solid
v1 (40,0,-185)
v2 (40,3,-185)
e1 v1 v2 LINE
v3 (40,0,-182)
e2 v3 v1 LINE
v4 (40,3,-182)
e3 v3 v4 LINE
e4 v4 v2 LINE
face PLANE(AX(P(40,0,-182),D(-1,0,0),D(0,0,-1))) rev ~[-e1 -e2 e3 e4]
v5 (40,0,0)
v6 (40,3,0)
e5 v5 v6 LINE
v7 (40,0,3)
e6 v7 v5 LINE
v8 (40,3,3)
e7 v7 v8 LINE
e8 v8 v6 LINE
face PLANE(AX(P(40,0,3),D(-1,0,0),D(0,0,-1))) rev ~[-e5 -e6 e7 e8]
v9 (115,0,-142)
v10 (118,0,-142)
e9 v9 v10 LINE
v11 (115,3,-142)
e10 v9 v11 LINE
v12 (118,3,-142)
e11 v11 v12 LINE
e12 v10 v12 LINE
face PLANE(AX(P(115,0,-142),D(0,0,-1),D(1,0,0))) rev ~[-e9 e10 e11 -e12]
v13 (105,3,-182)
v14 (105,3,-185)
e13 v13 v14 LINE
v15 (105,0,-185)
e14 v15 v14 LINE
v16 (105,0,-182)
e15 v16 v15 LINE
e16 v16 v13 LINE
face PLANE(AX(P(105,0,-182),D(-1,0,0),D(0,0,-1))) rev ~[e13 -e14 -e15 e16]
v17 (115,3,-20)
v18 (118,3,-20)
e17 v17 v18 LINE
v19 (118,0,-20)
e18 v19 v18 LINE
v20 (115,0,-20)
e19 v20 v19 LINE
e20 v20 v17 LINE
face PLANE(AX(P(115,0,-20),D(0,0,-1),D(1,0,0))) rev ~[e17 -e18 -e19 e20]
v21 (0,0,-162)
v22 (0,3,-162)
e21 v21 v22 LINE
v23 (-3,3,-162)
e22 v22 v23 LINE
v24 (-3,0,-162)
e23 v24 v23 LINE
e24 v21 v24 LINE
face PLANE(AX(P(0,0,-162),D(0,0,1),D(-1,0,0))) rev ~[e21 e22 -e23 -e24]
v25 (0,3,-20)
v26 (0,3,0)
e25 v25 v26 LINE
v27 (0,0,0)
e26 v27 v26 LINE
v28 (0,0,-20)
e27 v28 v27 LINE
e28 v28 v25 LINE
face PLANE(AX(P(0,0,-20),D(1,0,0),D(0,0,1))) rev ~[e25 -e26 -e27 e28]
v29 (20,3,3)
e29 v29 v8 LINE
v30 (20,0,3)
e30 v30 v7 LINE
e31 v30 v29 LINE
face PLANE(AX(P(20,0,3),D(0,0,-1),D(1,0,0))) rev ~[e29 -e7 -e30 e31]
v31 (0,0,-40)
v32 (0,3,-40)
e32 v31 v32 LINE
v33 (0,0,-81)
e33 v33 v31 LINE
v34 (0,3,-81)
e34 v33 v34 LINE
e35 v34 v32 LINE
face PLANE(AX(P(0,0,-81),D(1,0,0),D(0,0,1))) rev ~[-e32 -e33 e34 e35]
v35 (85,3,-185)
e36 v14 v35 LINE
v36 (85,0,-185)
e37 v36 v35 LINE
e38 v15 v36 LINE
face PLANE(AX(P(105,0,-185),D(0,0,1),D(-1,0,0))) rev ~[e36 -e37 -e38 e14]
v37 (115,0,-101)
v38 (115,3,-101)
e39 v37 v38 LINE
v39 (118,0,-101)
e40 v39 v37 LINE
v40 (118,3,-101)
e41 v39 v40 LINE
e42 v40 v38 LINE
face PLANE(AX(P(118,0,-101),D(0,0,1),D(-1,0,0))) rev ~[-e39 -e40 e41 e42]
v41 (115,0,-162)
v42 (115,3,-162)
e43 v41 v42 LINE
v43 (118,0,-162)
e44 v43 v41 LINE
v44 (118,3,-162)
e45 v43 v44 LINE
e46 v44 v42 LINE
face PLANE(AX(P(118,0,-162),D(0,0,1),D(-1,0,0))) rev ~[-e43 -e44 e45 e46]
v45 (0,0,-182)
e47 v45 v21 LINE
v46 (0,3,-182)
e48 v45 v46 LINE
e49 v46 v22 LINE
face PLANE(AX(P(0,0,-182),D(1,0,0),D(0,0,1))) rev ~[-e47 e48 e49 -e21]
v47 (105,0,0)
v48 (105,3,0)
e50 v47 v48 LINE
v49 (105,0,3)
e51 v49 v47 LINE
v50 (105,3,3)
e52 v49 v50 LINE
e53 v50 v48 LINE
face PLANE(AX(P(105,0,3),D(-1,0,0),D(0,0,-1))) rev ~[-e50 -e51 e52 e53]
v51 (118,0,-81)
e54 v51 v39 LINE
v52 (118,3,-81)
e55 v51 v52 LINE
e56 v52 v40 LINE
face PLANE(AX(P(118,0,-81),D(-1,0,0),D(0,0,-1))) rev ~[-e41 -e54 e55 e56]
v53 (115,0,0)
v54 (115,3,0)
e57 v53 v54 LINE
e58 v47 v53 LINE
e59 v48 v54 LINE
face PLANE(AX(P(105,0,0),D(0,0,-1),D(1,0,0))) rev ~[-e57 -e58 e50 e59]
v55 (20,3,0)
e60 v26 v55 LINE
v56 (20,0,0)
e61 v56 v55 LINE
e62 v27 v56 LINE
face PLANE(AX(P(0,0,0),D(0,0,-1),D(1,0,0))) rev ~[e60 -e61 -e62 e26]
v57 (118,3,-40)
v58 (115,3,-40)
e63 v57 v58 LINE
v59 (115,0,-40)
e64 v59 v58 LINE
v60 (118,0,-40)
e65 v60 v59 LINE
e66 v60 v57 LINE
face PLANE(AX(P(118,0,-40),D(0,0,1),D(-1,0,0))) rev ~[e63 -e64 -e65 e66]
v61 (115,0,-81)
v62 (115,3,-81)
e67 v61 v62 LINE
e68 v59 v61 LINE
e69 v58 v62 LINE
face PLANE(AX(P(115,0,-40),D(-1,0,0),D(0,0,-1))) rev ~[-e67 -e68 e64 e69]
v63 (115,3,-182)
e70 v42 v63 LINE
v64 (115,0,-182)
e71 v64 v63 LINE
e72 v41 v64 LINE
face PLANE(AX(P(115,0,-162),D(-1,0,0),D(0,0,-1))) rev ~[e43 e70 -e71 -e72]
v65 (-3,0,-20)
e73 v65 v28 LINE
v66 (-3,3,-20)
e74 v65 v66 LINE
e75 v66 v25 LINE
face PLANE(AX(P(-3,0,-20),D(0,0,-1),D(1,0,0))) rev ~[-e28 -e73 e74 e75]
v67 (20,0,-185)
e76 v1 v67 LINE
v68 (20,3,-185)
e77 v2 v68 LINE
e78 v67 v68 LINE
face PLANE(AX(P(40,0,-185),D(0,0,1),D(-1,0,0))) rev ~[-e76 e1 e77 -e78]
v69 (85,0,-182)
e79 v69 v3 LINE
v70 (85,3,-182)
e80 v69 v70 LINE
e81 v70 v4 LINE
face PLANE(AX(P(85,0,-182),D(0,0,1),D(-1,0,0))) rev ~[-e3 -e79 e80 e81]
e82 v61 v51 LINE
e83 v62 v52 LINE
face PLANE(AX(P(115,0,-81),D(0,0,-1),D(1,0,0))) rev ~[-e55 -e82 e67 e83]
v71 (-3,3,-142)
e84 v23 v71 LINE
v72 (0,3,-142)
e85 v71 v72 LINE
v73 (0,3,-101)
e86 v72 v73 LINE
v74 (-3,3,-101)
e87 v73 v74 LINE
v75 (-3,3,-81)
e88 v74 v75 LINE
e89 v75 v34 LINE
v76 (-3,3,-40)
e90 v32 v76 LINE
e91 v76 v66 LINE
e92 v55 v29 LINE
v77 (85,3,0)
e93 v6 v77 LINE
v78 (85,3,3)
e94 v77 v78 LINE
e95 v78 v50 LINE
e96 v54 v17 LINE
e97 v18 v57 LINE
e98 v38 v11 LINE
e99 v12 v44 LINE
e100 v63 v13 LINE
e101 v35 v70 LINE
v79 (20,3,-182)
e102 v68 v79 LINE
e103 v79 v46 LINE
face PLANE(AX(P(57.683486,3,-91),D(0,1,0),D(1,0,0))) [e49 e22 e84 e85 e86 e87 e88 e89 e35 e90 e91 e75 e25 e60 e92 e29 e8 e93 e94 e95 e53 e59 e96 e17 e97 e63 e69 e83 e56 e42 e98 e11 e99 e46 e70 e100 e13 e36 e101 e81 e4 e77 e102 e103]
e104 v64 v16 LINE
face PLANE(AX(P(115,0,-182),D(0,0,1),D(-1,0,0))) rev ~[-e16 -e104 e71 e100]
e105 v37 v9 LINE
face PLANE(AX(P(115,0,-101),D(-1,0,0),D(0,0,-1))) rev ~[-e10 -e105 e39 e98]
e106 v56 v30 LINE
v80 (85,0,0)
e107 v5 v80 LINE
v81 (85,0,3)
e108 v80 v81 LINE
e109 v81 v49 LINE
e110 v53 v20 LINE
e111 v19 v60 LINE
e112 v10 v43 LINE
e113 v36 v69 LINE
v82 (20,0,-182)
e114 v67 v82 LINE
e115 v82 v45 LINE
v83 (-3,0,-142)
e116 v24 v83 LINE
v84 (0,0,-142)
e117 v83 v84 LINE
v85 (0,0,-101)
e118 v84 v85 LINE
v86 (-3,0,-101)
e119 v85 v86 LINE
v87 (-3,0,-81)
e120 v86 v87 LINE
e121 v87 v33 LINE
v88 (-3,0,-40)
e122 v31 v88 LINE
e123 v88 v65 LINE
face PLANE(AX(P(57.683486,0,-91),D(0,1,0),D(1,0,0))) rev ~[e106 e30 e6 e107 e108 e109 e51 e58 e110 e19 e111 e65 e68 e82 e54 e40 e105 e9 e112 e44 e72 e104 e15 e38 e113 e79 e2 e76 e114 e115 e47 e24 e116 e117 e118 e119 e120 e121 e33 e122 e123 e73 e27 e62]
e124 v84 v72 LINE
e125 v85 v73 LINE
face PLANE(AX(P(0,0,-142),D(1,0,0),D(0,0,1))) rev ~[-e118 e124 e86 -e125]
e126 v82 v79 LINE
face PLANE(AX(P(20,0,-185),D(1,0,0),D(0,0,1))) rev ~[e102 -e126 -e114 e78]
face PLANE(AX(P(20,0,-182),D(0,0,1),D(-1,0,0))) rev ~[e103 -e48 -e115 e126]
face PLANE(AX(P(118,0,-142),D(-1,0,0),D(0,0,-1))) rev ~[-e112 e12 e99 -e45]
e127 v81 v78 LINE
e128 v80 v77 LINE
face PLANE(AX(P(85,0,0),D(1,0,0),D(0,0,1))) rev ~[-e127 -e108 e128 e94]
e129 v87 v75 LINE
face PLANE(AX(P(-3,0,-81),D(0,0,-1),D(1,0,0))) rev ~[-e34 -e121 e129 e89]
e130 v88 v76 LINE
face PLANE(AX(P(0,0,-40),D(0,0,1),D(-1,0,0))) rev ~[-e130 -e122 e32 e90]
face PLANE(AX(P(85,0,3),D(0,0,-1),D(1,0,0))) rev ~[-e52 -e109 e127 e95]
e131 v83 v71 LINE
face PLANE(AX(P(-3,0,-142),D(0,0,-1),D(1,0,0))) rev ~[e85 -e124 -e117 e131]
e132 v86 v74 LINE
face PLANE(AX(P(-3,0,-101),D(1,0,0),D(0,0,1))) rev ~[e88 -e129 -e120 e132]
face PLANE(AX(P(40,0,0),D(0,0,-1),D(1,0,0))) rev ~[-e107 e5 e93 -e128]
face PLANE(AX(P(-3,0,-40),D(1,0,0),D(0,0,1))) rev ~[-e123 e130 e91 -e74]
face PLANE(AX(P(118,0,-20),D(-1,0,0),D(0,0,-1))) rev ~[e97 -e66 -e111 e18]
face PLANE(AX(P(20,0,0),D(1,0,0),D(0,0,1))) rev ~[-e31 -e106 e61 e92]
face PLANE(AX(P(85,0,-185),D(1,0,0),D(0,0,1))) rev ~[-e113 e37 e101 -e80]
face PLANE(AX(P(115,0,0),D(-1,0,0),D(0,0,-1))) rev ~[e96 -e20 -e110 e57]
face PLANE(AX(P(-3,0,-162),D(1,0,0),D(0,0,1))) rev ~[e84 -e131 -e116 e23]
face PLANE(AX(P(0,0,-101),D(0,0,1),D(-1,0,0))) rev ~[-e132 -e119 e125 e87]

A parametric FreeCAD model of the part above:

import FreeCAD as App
import Part
import Sketcher
Q = App.Units.Quantity

doc = App.newDocument("Part")
body = doc.addObject("PartDesign::Body", "Body")

# Sketch on XZ plane
sketch1 = doc.addObject("Sketcher::SketchObject", "Sketch")
body.addObject(sketch1)
sketch1.AttachmentSupport = (doc.XZ_Plane, [""])
sketch1.MapMode = "FlatFace"
sketch1.addGeometry([
    Part.LineSegment(App.Vector(40, 0, 0), App.Vector(85, 0, 0)),  # 0
    Part.LineSegment(App.Vector(85, 0, 0), App.Vector(85, 3, 0)),  # 1
    Part.LineSegment(App.Vector(85, 3, 0), App.Vector(105, 3, 0)),  # 2
    Part.LineSegment(App.Vector(105, 3, 0), App.Vector(105, 0, 0)),  # 3
    Part.LineSegment(App.Vector(105, 0, 0), App.Vector(115, 0, 0)),  # 4
    Part.LineSegment(App.Vector(115, 0, 0), App.Vector(115, -20, 0)),  # 5
    Part.LineSegment(App.Vector(115, -20, 0), App.Vector(118, -20, 0)),  # 6
    Part.LineSegment(App.Vector(118, -20, 0), App.Vector(118, -40, 0)),  # 7
    Part.LineSegment(App.Vector(118, -40, 0), App.Vector(115, -40, 0)),  # 8
    Part.LineSegment(App.Vector(115, -40, 0), App.Vector(115, -81, 0)),  # 9
    Part.LineSegment(App.Vector(115, -81, 0), App.Vector(118, -81, 0)),  # 10
    Part.LineSegment(App.Vector(118, -81, 0), App.Vector(118, -101, 0)),  # 11
    Part.LineSegment(App.Vector(118, -101, 0), App.Vector(115, -101, 0)),  # 12
    Part.LineSegment(App.Vector(115, -101, 0), App.Vector(115, -142, 0)),  # 13
    Part.LineSegment(App.Vector(115, -142, 0), App.Vector(118, -142, 0)),  # 14
    Part.LineSegment(App.Vector(118, -142, 0), App.Vector(118, -162, 0)),  # 15
    Part.LineSegment(App.Vector(118, -162, 0), App.Vector(115, -162, 0)),  # 16
    Part.LineSegment(App.Vector(115, -162, 0), App.Vector(115, -182, 0)),  # 17
    Part.LineSegment(App.Vector(115, -182, 0), App.Vector(105, -182, 0)),  # 18
    Part.LineSegment(App.Vector(105, -182, 0), App.Vector(105, -185, 0)),  # 19
    Part.LineSegment(App.Vector(105, -185, 0), App.Vector(85, -185, 0)),  # 20
    Part.LineSegment(App.Vector(85, -185, 0), App.Vector(85, -182, 0)),  # 21
    Part.LineSegment(App.Vector(85, -182, 0), App.Vector(40, -182, 0)),  # 22
    Part.LineSegment(App.Vector(40, -182, 0), App.Vector(40, -185, 0)),  # 23
    Part.LineSegment(App.Vector(40, -185, 0), App.Vector(20, -185, 0)),  # 24
    Part.LineSegment(App.Vector(20, -185, 0), App.Vector(20, -182, 0)),  # 25
    Part.LineSegment(App.Vector(20, -182, 0), App.Vector(0, -182, 0)),  # 26
    Part.LineSegment(App.Vector(0, -182, 0), App.Vector(0, -162, 0)),  # 27
    Part.LineSegment(App.Vector(0, -162, 0), App.Vector(-3, -162, 0)),  # 28
    Part.LineSegment(App.Vector(-3, -162, 0), App.Vector(-3, -142, 0)),  # 29
    Part.LineSegment(App.Vector(-3, -142, 0), App.Vector(0, -142, 0)),  # 30
    Part.LineSegment(App.Vector(0, -142, 0), App.Vector(0, -101, 0)),  # 31
    Part.LineSegment(App.Vector(0, -101, 0), App.Vector(-3, -101, 0)),  # 32
    Part.LineSegment(App.Vector(-3, -101, 0), App.Vector(-3, -81, 0)),  # 33
    Part.LineSegment(App.Vector(-3, -81, 0), App.Vector(0, -81, 0)),  # 34
    Part.LineSegment(App.Vector(0, -81, 0), App.Vector(0, -40, 0)),  # 35
    Part.LineSegment(App.Vector(0, -40, 0), App.Vector(-3, -40, 0)),  # 36
    Part.LineSegment(App.Vector(-3, -40, 0), App.Vector(-3, -20, 0)),  # 37
    Part.LineSegment(App.Vector(-3, -20, 0), App.Vector(0, -20, 0)),  # 38
    Part.LineSegment(App.Vector(0, -20, 0), App.Vector(0, 0, 0)),  # 39
    Part.LineSegment(App.Vector(0, 0, 0), App.Vector(20, 0, 0)),  # 40
    Part.LineSegment(App.Vector(20, 0, 0), App.Vector(20, 3, 0)),  # 41
    Part.LineSegment(App.Vector(20, 3, 0), App.Vector(40, 3, 0)),  # 42
    Part.LineSegment(App.Vector(40, 3, 0), App.Vector(40, 0, 0)),  # 43
], False)
sketch1.addConstraint([
    Sketcher.Constraint("Coincident", 0, 2, 1, 1),
    Sketcher.Constraint("Coincident", 1, 2, 2, 1),
    Sketcher.Constraint("Coincident", 2, 2, 3, 1),
    Sketcher.Constraint("Coincident", 3, 2, 4, 1),
    Sketcher.Constraint("Coincident", 4, 2, 5, 1),
    Sketcher.Constraint("Coincident", 5, 2, 6, 1),
    Sketcher.Constraint("Coincident", 6, 2, 7, 1),
    Sketcher.Constraint("Coincident", 7, 2, 8, 1),
    Sketcher.Constraint("Coincident", 8, 2, 9, 1),
    Sketcher.Constraint("Coincident", 9, 2, 10, 1),
    Sketcher.Constraint("Coincident", 10, 2, 11, 1),
    Sketcher.Constraint("Coincident", 11, 2, 12, 1),
    Sketcher.Constraint("Coincident", 12, 2, 13, 1),
    Sketcher.Constraint("Coincident", 13, 2, 14, 1),
    Sketcher.Constraint("Coincident", 14, 2, 15, 1),
    Sketcher.Constraint("Coincident", 15, 2, 16, 1),
    Sketcher.Constraint("Coincident", 16, 2, 17, 1),
    Sketcher.Constraint("Coincident", 17, 2, 18, 1),
    Sketcher.Constraint("Coincident", 18, 2, 19, 1),
    Sketcher.Constraint("Coincident", 19, 2, 20, 1),
    Sketcher.Constraint("Coincident", 20, 2, 21, 1),
    Sketcher.Constraint("Coincident", 21, 2, 22, 1),
    Sketcher.Constraint("Coincident", 22, 2, 23, 1),
    Sketcher.Constraint("Coincident", 23, 2, 24, 1),
    Sketcher.Constraint("Coincident", 24, 2, 25, 1),
    Sketcher.Constraint("Coincident", 25, 2, 26, 1),
    Sketcher.Constraint("Coincident", 26, 2, 27, 1),
    Sketcher.Constraint("Coincident", 27, 2, 28, 1),
    Sketcher.Constraint("Coincident", 28, 2, 29, 1),
    Sketcher.Constraint("Coincident", 29, 2, 30, 1),
    Sketcher.Constraint("Coincident", 30, 2, 31, 1),
    Sketcher.Constraint("Coincident", 31, 2, 32, 1),
    Sketcher.Constraint("Coincident", 32, 2, 33, 1),
    Sketcher.Constraint("Coincident", 33, 2, 34, 1),
    Sketcher.Constraint("Coincident", 34, 2, 35, 1),
    Sketcher.Constraint("Coincident", 35, 2, 36, 1),
    Sketcher.Constraint("Coincident", 36, 2, 37, 1),
    Sketcher.Constraint("Coincident", 37, 2, 38, 1),
    Sketcher.Constraint("Coincident", 38, 2, 39, 1),
    Sketcher.Constraint("Coincident", 39, 2, 40, 1),
    Sketcher.Constraint("Coincident", 40, 2, 41, 1),
    Sketcher.Constraint("Coincident", 41, 2, 42, 1),
    Sketcher.Constraint("Coincident", 42, 2, 43, 1),
    Sketcher.Constraint("Coincident", 43, 2, 0, 1),
    Sketcher.Constraint("Horizontal", 0),
    Sketcher.Constraint("Vertical", 1),
    Sketcher.Constraint("Horizontal", 2),
    Sketcher.Constraint("Vertical", 3),
    Sketcher.Constraint("Horizontal", 4),
    Sketcher.Constraint("Vertical", 5),
    Sketcher.Constraint("Horizontal", 6),
    Sketcher.Constraint("Vertical", 7),
    Sketcher.Constraint("Horizontal", 8),
    Sketcher.Constraint("Vertical", 9),
    Sketcher.Constraint("Horizontal", 10),
    Sketcher.Constraint("Vertical", 11),
    Sketcher.Constraint("Horizontal", 12),
    Sketcher.Constraint("Vertical", 13),
    Sketcher.Constraint("Horizontal", 14),
    Sketcher.Constraint("Vertical", 15),
    Sketcher.Constraint("Horizontal", 16),
    Sketcher.Constraint("Vertical", 17),
    Sketcher.Constraint("Horizontal", 18),
    Sketcher.Constraint("Vertical", 19),
    Sketcher.Constraint("Horizontal", 20),
    Sketcher.Constraint("Vertical", 21),
    Sketcher.Constraint("Horizontal", 22),
    Sketcher.Constraint("Vertical", 23),
    Sketcher.Constraint("Horizontal", 24),
    Sketcher.Constraint("Vertical", 25),
    Sketcher.Constraint("Horizontal", 26),
    Sketcher.Constraint("Vertical", 27),
    Sketcher.Constraint("Horizontal", 28),
    Sketcher.Constraint("Vertical", 29),
    Sketcher.Constraint("Horizontal", 30),
    Sketcher.Constraint("Vertical", 31),
    Sketcher.Constraint("Horizontal", 32),
    Sketcher.Constraint("Vertical", 33),
    Sketcher.Constraint("Horizontal", 34),
    Sketcher.Constraint("Vertical", 35),
    Sketcher.Constraint("Horizontal", 36),
    Sketcher.Constraint("Vertical", 37),
    Sketcher.Constraint("Horizontal", 38),
    Sketcher.Constraint("Vertical", 39),
    Sketcher.Constraint("Horizontal", 40),
    Sketcher.Constraint("Vertical", 41),
    Sketcher.Constraint("Horizontal", 42),
    Sketcher.Constraint("Vertical", 43),
    Sketcher.Constraint("Coincident", 39, 2, -1, 1),
    Sketcher.Constraint("PointOnObject", 0, 2, -1),
    Sketcher.Constraint("PointOnObject", 3, 2, -1),
    Sketcher.Constraint("PointOnObject", 26, 2, -2),
    Sketcher.Constraint("PointOnObject", 30, 2, -2),
    Sketcher.Constraint("PointOnObject", 34, 2, -2),
    Sketcher.Constraint("Horizontal", 18, 2, 21, 2),
    Sketcher.Constraint("Horizontal", 20, 2, 23, 2),
    Sketcher.Constraint("Horizontal", 22, 2, 25, 2),
    Sketcher.Constraint("Horizontal", 16, 2, 27, 2),
    Sketcher.Constraint("Horizontal", 14, 2, 29, 2),
    Sketcher.Constraint("Horizontal", 12, 2, 31, 2),
    Sketcher.Constraint("Horizontal", 10, 2, 33, 2),
    Sketcher.Constraint("Horizontal", 8, 2, 35, 2),
    Sketcher.Constraint("Horizontal", 6, 2, 37, 2),
    Sketcher.Constraint("Horizontal", 2, 2, 41, 2),
    Sketcher.Constraint("Vertical", 5, 2, 8, 2),
    Sketcher.Constraint("Vertical", 7, 2, 10, 2),
    Sketcher.Constraint("Vertical", 9, 2, 12, 2),
    Sketcher.Constraint("Vertical", 11, 2, 14, 2),
    Sketcher.Constraint("Vertical", 13, 2, 16, 2),
    Sketcher.Constraint("Vertical", 3, 2, 18, 2),
    Sketcher.Constraint("Vertical", 1, 2, 20, 2),
    Sketcher.Constraint("Vertical", 29, 2, 32, 2),
    Sketcher.Constraint("Vertical", 33, 2, 36, 2),
    Sketcher.Constraint("Vertical", 25, 2, 40, 2),
    Sketcher.Constraint("Vertical", 23, 2, 42, 2),
    Sketcher.Constraint("Equal", 20, 24),
    Sketcher.Constraint("Equal", 24, 26),
    Sketcher.Constraint("Equal", 16, 28),
    Sketcher.Constraint("Equal", 38, 1),
    Sketcher.Constraint("Equal", 42, 5),
    Sketcher.Constraint("Equal", 5, 7),
    Sketcher.Constraint("Equal", 7, 11),
    Sketcher.Constraint("Equal", 9, 13),
    Sketcher.Constraint("Equal", 11, 15),
    Sketcher.Constraint("Equal", 15, 17),
    Sketcher.Constraint("Equal", 3, 19),
    Sketcher.Constraint("DistanceX", 0, 1, 0, 2, Q("45 mm")),
    Sketcher.Constraint("DistanceX", 2, 1, 2, 2, Q("20 mm")),
    Sketcher.Constraint("DistanceX", 4, 1, 4, 2, Q("10 mm")),
    Sketcher.Constraint("DistanceX", 6, 1, 6, 2, Q("3 mm")),
    Sketcher.Constraint("DistanceY", 9, 2, 9, 1, Q("41 mm")),
])
pad1 = doc.addObject("PartDesign::Pad", "Pad")
body.addObject(pad1)
pad1.Profile = sketch1
pad1.Length = 3
pad1.Reversed = True

doc.recompute()
